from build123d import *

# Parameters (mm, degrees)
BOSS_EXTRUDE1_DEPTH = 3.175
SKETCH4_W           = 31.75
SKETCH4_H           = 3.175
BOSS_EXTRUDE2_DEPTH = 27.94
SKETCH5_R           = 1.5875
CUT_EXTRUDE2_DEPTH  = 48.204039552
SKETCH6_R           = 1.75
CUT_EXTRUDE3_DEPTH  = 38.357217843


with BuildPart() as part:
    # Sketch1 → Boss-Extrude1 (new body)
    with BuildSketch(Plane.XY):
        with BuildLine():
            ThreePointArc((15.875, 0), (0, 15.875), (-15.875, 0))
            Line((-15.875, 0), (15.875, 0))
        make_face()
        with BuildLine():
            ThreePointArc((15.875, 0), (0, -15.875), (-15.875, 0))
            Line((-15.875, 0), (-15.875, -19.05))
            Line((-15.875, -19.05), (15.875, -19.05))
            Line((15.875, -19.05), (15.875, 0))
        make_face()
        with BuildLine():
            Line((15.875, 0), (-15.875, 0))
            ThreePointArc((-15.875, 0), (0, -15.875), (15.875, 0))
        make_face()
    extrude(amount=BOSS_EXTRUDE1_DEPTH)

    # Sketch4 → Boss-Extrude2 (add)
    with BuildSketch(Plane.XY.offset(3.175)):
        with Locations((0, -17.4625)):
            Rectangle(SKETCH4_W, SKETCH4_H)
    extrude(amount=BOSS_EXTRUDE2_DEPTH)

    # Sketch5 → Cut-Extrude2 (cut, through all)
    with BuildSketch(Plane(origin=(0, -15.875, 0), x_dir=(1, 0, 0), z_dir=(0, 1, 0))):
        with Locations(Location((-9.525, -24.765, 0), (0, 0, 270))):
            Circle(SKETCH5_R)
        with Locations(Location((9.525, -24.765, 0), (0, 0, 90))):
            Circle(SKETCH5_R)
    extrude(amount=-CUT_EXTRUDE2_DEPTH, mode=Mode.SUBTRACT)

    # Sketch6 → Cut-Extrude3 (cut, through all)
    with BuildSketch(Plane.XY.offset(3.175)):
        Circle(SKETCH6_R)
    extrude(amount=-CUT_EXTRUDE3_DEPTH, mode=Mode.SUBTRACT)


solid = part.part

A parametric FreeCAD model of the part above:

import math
import FreeCAD as App
import Part
import Sketcher
from FreeCAD import Vector
Q = App.Units.Quantity

doc = App.newDocument("Part")
body = doc.addObject("PartDesign::Body", "Body")

# Sketch on XY plane
sketch1 = body.newObject("Sketcher::SketchObject", "Sketch")
sketch1.AttachmentSupport = (doc.getObject("XY_Plane"), [""])
sketch1.MapMode = "FlatFace"
sketch1.addGeometry([
    Part.ArcOfCircle(Part.Circle(Vector(0, 0, 0), Vector(0, 0, 1), 16), math.radians(0), math.radians(180)),
    Part.LineSegment(Vector(-16, 0, 0), Vector(-16, -19, 0)),
    Part.LineSegment(Vector(-16, -19, 0), Vector(16, -19, 0)),
    Part.LineSegment(Vector(16, -19, 0), Vector(16, 0, 0)),
], False)
sketch1.addConstraint([
    Sketcher.Constraint("Tangent", 0, 2, 1, 1),
    Sketcher.Constraint("Coincident", 1, 2, 2, 1),
    Sketcher.Constraint("Coincident", 2, 2, 3, 1),
    Sketcher.Constraint("Tangent", 3, 2, 0, 1),
    Sketcher.Constraint("Vertical", 1),
    Sketcher.Constraint("Horizontal", 2),
    Sketcher.Constraint("Vertical", 3),
    Sketcher.Constraint("Coincident", 0, 3, -1, 1),
    Sketcher.Constraint("Radius", 0, Q("0.625 in")),
    Sketcher.Constraint("DistanceY", 1, 2, 1, 1, Q("0.75 in")),
])
pad1 = body.newObject("PartDesign::Pad", "Pad")
pad1.Profile = sketch1
pad1.Length = Q("0.125 in")

# Sketch on XY plane
sketch2 = body.newObject("Sketcher::SketchObject", "Sketch001")
sketch2.AttachmentSupport = (doc.getObject("XY_Plane"), [""])
sketch2.MapMode = "FlatFace"
sketch2.AttachmentOffset = App.Placement(Vector(0, 0, 0.125 * 25.4), App.Rotation())
sketch2.addGeometry([
    Part.LineSegment(Vector(-15.9, -15.9, 0), Vector(-15.9, -19.1, 0)),
    Part.LineSegment(Vector(-15.9, -19.1, 0), Vector(15.9, -19.1, 0)),
    Part.LineSegment(Vector(15.9, -19.1, 0), Vector(15.9, -15.9, 0)),
    Part.LineSegment(Vector(15.9, -15.9, 0), Vector(-15.9, -15.9, 0)),
], False)
sketch2.addConstraint([
    Sketcher.Constraint("Coincident", 0, 2, 1, 1),
    Sketcher.Constraint("Coincident", 1, 2, 2, 1),
    Sketcher.Constraint("Coincident", 2, 2, 3, 1),
    Sketcher.Constraint("Coincident", 3, 2, 0, 1),
    Sketcher.Constraint("Vertical", 0),
    Sketcher.Constraint("Horizontal", 1),
    Sketcher.Constraint("Vertical", 2),
    Sketcher.Constraint("Horizontal", 3),
    Sketcher.Constraint("DistanceX", 1, 1, 1, 2, Q("1.25 in")),
    Sketcher.Constraint("DistanceY", 0, 2, 0, 1, Q("0.125 in")),
    Sketcher.Constraint("DistanceY", 0, 2, -1, 1, Q("0.75 in")),
    Sketcher.Constraint("DistanceX", 0, 2, -1, 1, Q("0.625 in")),
])
pad2 = body.newObject("PartDesign::Pad", "Pad001")
pad2.Profile = sketch2
pad2.Length = Q("1.1 in")

# Sketch on XZ plane
sketch3 = body.newObject("Sketcher::SketchObject", "Sketch002")
sketch3.AttachmentSupport = (doc.getObject("XZ_Plane"), [""])
sketch3.MapMode = "FlatFace"
sketch3.AttachmentOffset = App.Placement(Vector(0, 0, 0.625 * 25.4), App.Rotation())
sketch3.addGeometry([
    Part.Circle(Vector(-9.5, 24.8, 0), Vector(0, 0, 1), 1.6),
    Part.Circle(Vector(9.5, 24.8, 0), Vector(0, 0, 1), 1.6),
], False)
sketch3.addConstraint([
    Sketcher.Constraint("Equal", 0, 1),
    Sketcher.Constraint("Symmetric", 0, 3, 1, 3, -2),
    Sketcher.Constraint("Diameter", 0, Q("0.125 in")),
    Sketcher.Constraint("DistanceX", 0, 3, 1, 3, Q("0.75 in")),
    Sketcher.Constraint("DistanceY", -1, 1, 0, 3, Q("0.975 in")),
])
pocket1 = body.newObject("PartDesign::Pocket", "Pocket")
pocket1.Profile = sketch3
pocket1.Type = "ThroughAll"
pocket1.Reversed = True

# Sketch on XY plane
sketch4 = body.newObject("Sketcher::SketchObject", "Sketch003")
sketch4.AttachmentSupport = (doc.getObject("XY_Plane"), [""])
sketch4.MapMode = "FlatFace"
sketch4.AttachmentOffset = App.Placement(Vector(0, 0, 0.125 * 25.4), App.Rotation())
sketch4.addGeometry(Part.Circle(Vector(0, 0, 0), Vector(0, 0, 1), 1.8), False)
sketch4.addConstraint([
    Sketcher.Constraint("Coincident", 0, 3, -1, 1),
    Sketcher.Constraint("Diameter", 0, Q("3.5 mm")),
])
pocket2 = body.newObject("PartDesign::Pocket", "Pocket001")
pocket2.Profile = sketch4
pocket2.Type = "ThroughAll"

doc.recompute()
